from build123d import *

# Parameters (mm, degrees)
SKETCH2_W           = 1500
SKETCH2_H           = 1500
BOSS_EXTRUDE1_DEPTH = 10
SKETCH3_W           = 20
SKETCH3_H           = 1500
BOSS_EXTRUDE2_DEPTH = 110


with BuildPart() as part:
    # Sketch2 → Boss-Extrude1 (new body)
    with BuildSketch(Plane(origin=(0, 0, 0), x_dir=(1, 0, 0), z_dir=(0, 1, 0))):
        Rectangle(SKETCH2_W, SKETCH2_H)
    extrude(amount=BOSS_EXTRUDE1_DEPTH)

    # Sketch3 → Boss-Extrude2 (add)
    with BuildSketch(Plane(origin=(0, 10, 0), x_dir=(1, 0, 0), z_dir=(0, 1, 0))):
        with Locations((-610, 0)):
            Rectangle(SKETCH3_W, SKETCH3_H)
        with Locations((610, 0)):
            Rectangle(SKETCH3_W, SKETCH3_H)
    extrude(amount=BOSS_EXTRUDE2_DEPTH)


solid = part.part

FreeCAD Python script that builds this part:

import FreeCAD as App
import Part
import Sketcher
Q = App.Units.Quantity


def add_polygon(sketch, points):
    """Adds a closed chain of lines whose ends are joined by coincident constraints."""
    first, n = sketch.GeometryCount, len(points)
    for a, b in zip(points, points[1:] + points[:1]):
        sketch.addGeometry(Part.LineSegment(App.Vector(*a, 0), App.Vector(*b, 0)), False)
    for i in range(n):
        sketch.addConstraint(Sketcher.Constraint("Coincident", first + i, 2, first + (i + 1) % n, 1))

doc = App.newDocument("Part")
body = doc.addObject("PartDesign::Body", "Body")

# Sketch on XZ plane
sketch1 = body.newObject("Sketcher::SketchObject", "Sketch")
sketch1.AttachmentSupport = (doc.getObject("XZ_Plane"), [""])
sketch1.MapMode = "FlatFace"
add_polygon(sketch1, [(-750, -750), (-750, 750), (750, 750), (750, -750)])  # lines 0-3
sketch1.addConstraint(Sketcher.Constraint("Vertical", 0))
sketch1.addConstraint(Sketcher.Constraint("Horizontal", 1))
sketch1.addConstraint(Sketcher.Constraint("Vertical", 2))
sketch1.addConstraint(Sketcher.Constraint("Horizontal", 3))
sketch1.addConstraint(Sketcher.Constraint("Symmetric", 0, 2, 2, 2, -1, 1))
sketch1.addConstraint(Sketcher.Constraint("Equal", 3, 0))
sketch1.addConstraint(Sketcher.Constraint("DistanceX", 1, 1, 1, 2, Q("1500 mm")))
pad1 = body.newObject("PartDesign::Pad", "Pad")
pad1.Profile = sketch1
pad1.Length = 10
pad1.Reversed = True

# Sketch on XZ plane
sketch2 = body.newObject("Sketcher::SketchObject", "Sketch001")
sketch2.AttachmentSupport = (doc.getObject("XZ_Plane"), [""])
sketch2.MapMode = "FlatFace"
sketch2.AttachmentOffset = App.Placement(App.Vector(0, 0, -10), App.Rotation())
add_polygon(sketch2, [(-620, -750), (-620, 750), (-600, 750), (-600, -750)])  # lines 0-3
add_polygon(sketch2, [(600, -750), (600, 750), (620, 750), (620, -750)])  # lines 4-7
sketch2.addConstraint(Sketcher.Constraint("Vertical", 0))
sketch2.addConstraint(Sketcher.Constraint("Horizontal", 1))
sketch2.addConstraint(Sketcher.Constraint("Vertical", 2))
sketch2.addConstraint(Sketcher.Constraint("Horizontal", 3))
sketch2.addConstraint(Sketcher.Constraint("Vertical", 4))
sketch2.addConstraint(Sketcher.Constraint("Horizontal", 5))
sketch2.addConstraint(Sketcher.Constraint("Vertical", 6))
sketch2.addConstraint(Sketcher.Constraint("Horizontal", 7))
sketch2.addConstraint(Sketcher.Constraint("Symmetric", 2, 2, 4, 2, -1, 1))
sketch2.addConstraint(Sketcher.Constraint("Symmetric", 0, 2, 6, 2, -1, 1))
sketch2.addConstraint(Sketcher.Constraint("Horizontal", 1, 2, 4, 2))
sketch2.addConstraint(Sketcher.Constraint("DistanceX", 1, 1, 1, 2, Q("20 mm")))
sketch2.addConstraint(Sketcher.Constraint("DistanceY", 0, 1, 0, 2, Q("1500 mm")))
sketch2.addConstraint(Sketcher.Constraint("DistanceX", 0, 2, -1, 1, Q("620 mm")))
pad2 = body.newObject("PartDesign::Pad", "Pad001")
pad2.Profile = sketch2
pad2.Length = 110
pad2.Reversed = True

doc.recompute()
